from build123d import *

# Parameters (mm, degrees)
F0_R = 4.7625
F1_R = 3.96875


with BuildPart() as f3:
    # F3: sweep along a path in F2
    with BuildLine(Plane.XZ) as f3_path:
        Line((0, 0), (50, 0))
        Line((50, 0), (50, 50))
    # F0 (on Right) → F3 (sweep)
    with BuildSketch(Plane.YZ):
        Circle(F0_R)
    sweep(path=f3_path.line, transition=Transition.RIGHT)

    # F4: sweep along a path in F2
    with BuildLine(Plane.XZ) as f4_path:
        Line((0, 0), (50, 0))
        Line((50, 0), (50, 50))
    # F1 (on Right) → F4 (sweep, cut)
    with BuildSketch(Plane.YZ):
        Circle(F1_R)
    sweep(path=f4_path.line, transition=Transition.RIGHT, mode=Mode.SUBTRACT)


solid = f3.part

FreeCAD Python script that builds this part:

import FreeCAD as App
import Part
import Sketcher
Q = App.Units.Quantity

doc = App.newDocument("Part")
body = doc.addObject("PartDesign::Body", "Body")

sketch1 = body.newObject("Sketcher::SketchObject", "Sketch")
sketch1.AttachmentSupport = (doc.getObject("YZ_Plane"), [""])
sketch1.MapMode = "FlatFace"
sketch1.addGeometry(Part.Circle(App.Vector(0, 0, 0), App.Vector(0, 0, 1), 4.8), False)
sketch1.addConstraint([
    Sketcher.Constraint("Coincident", 0, 3, -1, 1),
    Sketcher.Constraint("Diameter", 0, Q("0.375 in")),
])

sketch2 = body.newObject("Sketcher::SketchObject", "Sketch001")
sketch2.AttachmentSupport = (doc.getObject("XZ_Plane"), [""])
sketch2.MapMode = "FlatFace"
sketch2.addGeometry([
    Part.LineSegment(App.Vector(0, 0, 0), App.Vector(50, 0, 0)),
    Part.LineSegment(App.Vector(50, 0, 0), App.Vector(50, 50, 0)),
], False)
sketch2.addConstraint([
    Sketcher.Constraint("Coincident", 0, 2, 1, 1),
    Sketcher.Constraint("Horizontal", 0),
    Sketcher.Constraint("Vertical", 1),
    Sketcher.Constraint("Coincident", 0, 1, -1, 1),
    Sketcher.Constraint("Equal", 0, 1),
    Sketcher.Constraint("DistanceX", 0, 1, 0, 2, 50.0),
])
doc.recompute()

additivepipe = body.newObject("PartDesign::AdditivePipe", "AdditivePipe")
additivepipe.Profile = sketch1
additivepipe.Spine = (sketch2, ["Edge1", "Edge2"])
additivepipe.Transition = "Right corner"

sketch3 = body.newObject("Sketcher::SketchObject", "Sketch002")
sketch3.AttachmentSupport = (doc.getObject("YZ_Plane"), [""])
sketch3.MapMode = "FlatFace"
sketch3.addGeometry(Part.Circle(App.Vector(0, 0, 0), App.Vector(0, 0, 1), 4), False)
sketch3.addConstraint([
    Sketcher.Constraint("Coincident", 0, 3, -1, 1),
    Sketcher.Constraint("Diameter", 0, Q("0.3125 in")),
])

sketch4 = body.newObject("Sketcher::SketchObject", "Sketch003")
sketch4.AttachmentSupport = (doc.getObject("XZ_Plane"), [""])
sketch4.MapMode = "FlatFace"
sketch4.addGeometry([
    Part.LineSegment(App.Vector(0, 0, 0), App.Vector(50, 0, 0)),
    Part.LineSegment(App.Vector(50, 0, 0), App.Vector(50, 50, 0)),
], False)
sketch4.addConstraint([
    Sketcher.Constraint("Coincident", 0, 2, 1, 1),
    Sketcher.Constraint("Horizontal", 0),
    Sketcher.Constraint("Vertical", 1),
    Sketcher.Constraint("Coincident", 0, 1, -1, 1),
    Sketcher.Constraint("Equal", 0, 1),
    Sketcher.Constraint("DistanceX", 0, 1, 0, 2, 50.0),
])
doc.recompute()

subtractivepipe = body.newObject("PartDesign::SubtractivePipe", "SubtractivePipe")
subtractivepipe.Profile = sketch3
subtractivepipe.Spine = (sketch4, ["Edge1", "Edge2"])
subtractivepipe.Transition = "Right corner"

doc.recompute()
